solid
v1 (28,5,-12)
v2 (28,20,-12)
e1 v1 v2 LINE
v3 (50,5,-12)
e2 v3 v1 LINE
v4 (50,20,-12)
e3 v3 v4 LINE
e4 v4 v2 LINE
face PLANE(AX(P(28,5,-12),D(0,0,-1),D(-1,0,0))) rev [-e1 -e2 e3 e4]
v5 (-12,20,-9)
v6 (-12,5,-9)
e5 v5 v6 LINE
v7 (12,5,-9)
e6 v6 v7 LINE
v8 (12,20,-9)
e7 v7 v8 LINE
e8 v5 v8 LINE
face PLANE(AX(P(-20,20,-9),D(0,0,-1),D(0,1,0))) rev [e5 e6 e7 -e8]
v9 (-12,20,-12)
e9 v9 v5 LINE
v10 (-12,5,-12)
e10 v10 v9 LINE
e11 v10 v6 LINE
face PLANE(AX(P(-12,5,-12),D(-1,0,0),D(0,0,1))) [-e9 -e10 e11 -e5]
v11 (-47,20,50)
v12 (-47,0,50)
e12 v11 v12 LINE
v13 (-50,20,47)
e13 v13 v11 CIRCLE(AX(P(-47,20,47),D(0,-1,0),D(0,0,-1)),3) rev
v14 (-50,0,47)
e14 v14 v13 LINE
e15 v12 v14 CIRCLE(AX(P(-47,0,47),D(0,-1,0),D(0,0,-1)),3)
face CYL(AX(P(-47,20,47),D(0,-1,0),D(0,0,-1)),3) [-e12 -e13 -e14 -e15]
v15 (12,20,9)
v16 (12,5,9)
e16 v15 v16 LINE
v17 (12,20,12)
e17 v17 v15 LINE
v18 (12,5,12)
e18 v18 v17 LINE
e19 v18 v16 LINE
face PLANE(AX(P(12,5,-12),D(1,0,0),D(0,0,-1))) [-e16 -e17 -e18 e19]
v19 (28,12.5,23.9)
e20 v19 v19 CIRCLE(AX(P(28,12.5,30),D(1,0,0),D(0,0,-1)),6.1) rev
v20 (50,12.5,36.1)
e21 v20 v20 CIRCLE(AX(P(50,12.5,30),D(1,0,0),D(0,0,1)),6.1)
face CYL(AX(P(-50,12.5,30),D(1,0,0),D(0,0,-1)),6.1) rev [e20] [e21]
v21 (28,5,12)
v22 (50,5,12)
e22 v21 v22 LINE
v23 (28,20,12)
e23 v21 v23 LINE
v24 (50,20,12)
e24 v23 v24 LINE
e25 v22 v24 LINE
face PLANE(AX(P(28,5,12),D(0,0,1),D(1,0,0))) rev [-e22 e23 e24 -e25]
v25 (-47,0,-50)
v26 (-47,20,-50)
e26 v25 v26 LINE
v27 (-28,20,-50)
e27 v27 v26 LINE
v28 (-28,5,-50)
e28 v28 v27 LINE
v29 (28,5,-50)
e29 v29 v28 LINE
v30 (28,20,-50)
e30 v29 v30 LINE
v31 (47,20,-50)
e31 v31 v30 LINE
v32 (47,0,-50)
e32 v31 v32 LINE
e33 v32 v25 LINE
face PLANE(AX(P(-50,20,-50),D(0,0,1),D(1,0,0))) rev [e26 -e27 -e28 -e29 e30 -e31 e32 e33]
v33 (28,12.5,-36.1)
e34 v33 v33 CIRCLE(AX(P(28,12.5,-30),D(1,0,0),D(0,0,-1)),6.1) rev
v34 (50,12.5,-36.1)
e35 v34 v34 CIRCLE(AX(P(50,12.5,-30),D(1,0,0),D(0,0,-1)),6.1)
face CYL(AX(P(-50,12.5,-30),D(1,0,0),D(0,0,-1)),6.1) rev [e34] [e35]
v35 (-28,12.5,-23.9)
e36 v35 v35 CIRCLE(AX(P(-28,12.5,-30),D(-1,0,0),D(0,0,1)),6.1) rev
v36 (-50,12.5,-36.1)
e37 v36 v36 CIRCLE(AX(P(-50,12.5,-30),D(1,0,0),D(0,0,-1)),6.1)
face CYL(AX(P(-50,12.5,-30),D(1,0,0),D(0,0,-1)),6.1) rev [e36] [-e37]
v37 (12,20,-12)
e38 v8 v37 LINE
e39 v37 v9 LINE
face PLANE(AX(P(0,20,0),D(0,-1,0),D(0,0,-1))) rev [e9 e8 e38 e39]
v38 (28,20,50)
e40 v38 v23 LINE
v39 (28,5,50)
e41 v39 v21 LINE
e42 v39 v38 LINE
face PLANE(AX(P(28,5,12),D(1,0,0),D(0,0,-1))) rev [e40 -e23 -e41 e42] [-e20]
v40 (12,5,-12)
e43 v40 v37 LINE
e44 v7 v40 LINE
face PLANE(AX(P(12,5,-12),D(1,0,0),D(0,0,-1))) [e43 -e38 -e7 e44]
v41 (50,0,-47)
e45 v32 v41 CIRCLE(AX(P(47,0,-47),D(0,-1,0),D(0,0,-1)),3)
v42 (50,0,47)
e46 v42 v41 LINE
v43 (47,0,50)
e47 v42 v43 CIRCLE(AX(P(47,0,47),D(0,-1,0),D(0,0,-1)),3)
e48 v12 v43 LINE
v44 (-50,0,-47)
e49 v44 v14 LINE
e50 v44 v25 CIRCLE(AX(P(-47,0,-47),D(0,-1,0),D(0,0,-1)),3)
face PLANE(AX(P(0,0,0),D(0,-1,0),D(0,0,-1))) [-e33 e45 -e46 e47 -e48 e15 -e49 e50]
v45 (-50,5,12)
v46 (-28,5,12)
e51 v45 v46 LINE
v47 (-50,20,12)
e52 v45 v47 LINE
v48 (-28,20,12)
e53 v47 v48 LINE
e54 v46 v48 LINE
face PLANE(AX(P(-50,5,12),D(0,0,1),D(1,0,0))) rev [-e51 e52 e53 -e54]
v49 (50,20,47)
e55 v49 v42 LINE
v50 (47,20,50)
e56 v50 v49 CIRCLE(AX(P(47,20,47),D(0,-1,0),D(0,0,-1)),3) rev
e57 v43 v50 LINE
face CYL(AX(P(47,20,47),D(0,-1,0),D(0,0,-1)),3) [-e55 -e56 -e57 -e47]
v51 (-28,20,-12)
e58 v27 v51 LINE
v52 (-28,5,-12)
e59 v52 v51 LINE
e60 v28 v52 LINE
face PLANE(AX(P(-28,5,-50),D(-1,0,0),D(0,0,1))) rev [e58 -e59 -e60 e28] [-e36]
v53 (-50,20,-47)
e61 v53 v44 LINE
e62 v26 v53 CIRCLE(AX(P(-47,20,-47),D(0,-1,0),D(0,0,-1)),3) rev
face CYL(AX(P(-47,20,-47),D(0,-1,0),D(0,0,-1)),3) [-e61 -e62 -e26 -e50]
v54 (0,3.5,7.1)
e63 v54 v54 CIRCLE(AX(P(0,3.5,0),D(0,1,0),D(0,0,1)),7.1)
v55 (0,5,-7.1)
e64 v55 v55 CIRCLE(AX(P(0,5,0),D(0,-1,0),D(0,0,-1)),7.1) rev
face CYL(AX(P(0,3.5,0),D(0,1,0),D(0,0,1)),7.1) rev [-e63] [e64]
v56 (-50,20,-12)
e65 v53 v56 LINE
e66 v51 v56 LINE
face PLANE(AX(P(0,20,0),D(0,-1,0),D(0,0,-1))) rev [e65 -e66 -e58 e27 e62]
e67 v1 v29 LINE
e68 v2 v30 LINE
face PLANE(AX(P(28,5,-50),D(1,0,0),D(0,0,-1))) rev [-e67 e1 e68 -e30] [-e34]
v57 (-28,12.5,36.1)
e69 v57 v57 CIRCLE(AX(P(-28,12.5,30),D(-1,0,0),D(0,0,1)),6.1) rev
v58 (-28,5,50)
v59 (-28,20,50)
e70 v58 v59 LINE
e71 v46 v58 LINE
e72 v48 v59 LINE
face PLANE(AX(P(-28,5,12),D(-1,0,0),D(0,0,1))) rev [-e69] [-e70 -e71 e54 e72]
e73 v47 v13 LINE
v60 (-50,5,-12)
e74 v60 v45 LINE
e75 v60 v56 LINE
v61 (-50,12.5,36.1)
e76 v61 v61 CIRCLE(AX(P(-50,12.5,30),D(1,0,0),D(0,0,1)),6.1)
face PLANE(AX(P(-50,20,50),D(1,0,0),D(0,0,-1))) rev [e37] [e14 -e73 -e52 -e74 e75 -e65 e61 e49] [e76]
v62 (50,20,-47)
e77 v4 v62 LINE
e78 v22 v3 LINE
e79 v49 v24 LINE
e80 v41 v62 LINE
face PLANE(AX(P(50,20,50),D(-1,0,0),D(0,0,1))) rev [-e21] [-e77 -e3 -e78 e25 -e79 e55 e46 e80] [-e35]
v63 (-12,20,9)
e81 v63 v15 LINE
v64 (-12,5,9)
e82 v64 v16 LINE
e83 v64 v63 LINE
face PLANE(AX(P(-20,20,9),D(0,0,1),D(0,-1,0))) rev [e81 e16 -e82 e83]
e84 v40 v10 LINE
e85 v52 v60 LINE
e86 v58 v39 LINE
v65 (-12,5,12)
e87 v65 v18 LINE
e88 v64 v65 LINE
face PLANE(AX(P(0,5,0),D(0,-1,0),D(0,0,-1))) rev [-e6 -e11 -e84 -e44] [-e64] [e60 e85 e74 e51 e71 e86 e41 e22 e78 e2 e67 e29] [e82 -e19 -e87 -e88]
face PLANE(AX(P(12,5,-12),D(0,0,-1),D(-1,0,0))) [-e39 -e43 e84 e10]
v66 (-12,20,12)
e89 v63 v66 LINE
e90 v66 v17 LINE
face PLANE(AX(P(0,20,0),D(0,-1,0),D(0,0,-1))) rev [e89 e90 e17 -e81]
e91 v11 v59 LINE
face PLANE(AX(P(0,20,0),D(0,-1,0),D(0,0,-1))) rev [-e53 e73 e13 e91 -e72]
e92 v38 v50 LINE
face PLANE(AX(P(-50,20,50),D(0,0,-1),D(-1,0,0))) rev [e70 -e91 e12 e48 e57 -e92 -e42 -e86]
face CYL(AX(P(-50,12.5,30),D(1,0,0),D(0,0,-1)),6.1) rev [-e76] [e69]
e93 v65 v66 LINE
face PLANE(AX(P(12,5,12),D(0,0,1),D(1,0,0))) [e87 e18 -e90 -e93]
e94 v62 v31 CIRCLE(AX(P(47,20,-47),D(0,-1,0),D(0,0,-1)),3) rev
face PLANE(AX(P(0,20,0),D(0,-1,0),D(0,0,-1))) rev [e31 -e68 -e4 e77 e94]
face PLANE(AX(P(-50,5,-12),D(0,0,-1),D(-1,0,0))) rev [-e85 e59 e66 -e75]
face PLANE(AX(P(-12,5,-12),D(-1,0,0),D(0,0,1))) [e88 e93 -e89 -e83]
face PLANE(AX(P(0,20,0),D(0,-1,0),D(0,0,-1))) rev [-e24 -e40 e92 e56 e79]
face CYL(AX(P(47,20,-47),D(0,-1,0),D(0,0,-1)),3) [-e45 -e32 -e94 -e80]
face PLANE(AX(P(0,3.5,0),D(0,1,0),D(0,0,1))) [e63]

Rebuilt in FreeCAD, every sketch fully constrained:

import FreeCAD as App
import Part
import Sketcher
Q = App.Units.Quantity


def edges_at(feature, points):
    """Names of the edges that pass closest to the given points."""
    edges = feature.Shape.Edges
    near = lambda p: min(range(len(edges)), key=lambda i: edges[i].distToShape(Part.Vertex(*p))[0])
    return sorted({f"Edge{near(p) + 1}" for p in points})


def add_polygon(sketch, points):
    """Adds a closed chain of lines whose ends are joined by coincident constraints."""
    first, n = sketch.GeometryCount, len(points)
    for a, b in zip(points, points[1:] + points[:1]):
        sketch.addGeometry(Part.LineSegment(App.Vector(*a, 0), App.Vector(*b, 0)), False)
    for i in range(n):
        sketch.addConstraint(Sketcher.Constraint("Coincident", first + i, 2, first + (i + 1) % n, 1))

doc = App.newDocument("Part")
body = doc.addObject("PartDesign::Body", "Body")

sketch1 = body.newObject("Sketcher::SketchObject", "Sketch")
sketch1.AttachmentSupport = (doc.getObject("XZ_Plane"), [""])
sketch1.MapMode = "FlatFace"
add_polygon(sketch1, [(-50, -50), (-50, 50), (50, 50), (50, -50)])
sketch1.addConstraint(Sketcher.Constraint("Vertical", 0))
sketch1.addConstraint(Sketcher.Constraint("Horizontal", 1))
sketch1.addConstraint(Sketcher.Constraint("Vertical", 2))
sketch1.addConstraint(Sketcher.Constraint("Horizontal", 3))
sketch1.addConstraint(Sketcher.Constraint("Symmetric", 0, 2, 2, 2, -1, 1))
sketch1.addConstraint(Sketcher.Constraint("Equal", 3, 0))
sketch1.addConstraint(Sketcher.Constraint("DistanceX", 1, 1, 1, 2, Q("100 mm")))
pad1 = body.newObject("PartDesign::Pad", "Pad")
pad1.Profile = sketch1
pad1.Length = 20
pad1.Reversed = True

sketch2 = body.newObject("Sketcher::SketchObject", "Sketch001")
sketch2.AttachmentSupport = (doc.getObject("XZ_Plane"), [""])
sketch2.MapMode = "FlatFace"
sketch2.AttachmentOffset = App.Placement(App.Vector(0, 0, -20), App.Rotation())
sketch2.addGeometry(Part.Circle(App.Vector(0, 0, 0), App.Vector(0, 0, 1), 7), False)
sketch2.addConstraint(Sketcher.Constraint("Coincident", 0, 3, -1, 1))
sketch2.addConstraint(Sketcher.Constraint("Diameter", 0, Q("14.2 mm")))
pocket1 = body.newObject("PartDesign::Pocket", "Pocket")
pocket1.Profile = sketch2
pocket1.Length = 16.5
pocket1.Reversed = True

sketch3 = body.newObject("Sketcher::SketchObject", "Sketch002")
sketch3.AttachmentSupport = (doc.getObject("YZ_Plane"), [""])
sketch3.MapMode = "FlatFace"
sketch3.addGeometry(Part.Circle(App.Vector(12, -30, 0), App.Vector(0, 0, 1), 6), False)
sketch3.addGeometry(Part.Circle(App.Vector(12, 30, 0), App.Vector(0, 0, 1), 6), False)
sketch3.addConstraint(Sketcher.Constraint("Equal", 0, 1))
sketch3.addConstraint(Sketcher.Constraint("Symmetric", 0, 3, 1, 3, -1))
sketch3.addConstraint(Sketcher.Constraint("Diameter", 0, Q("12.2 mm")))
sketch3.addConstraint(Sketcher.Constraint("DistanceY", 0, 3, -1, 1, Q("30 mm")))
sketch3.addConstraint(Sketcher.Constraint("DistanceX", -1, 1, 0, 3, Q("12.5 mm")))
pocket2 = body.newObject("PartDesign::Pocket", "Pocket001")
pocket2.Profile = sketch3
pocket2.Type = "ThroughAll"
pocket2.Midplane = True
doc.recompute()

fillet = body.newObject("PartDesign::Fillet", "Fillet")
fillet.Base = (pocket2, edges_at(pocket2, [
    (50, 10, 50),
    (-50, 10, 50),
    (-50, 10, -50),
    (50, 10, -50),
]))
fillet.Radius = 3

sketch4 = body.newObject("Sketcher::SketchObject", "Sketch003")
sketch4.AttachmentSupport = (doc.getObject("XZ_Plane"), [""])
sketch4.MapMode = "FlatFace"
sketch4.AttachmentOffset = App.Placement(App.Vector(0, 0, -20), App.Rotation())
add_polygon(sketch4, [(-28, -12), (-50, -12), (-50, 12), (-28, 12), (-28, 50), (28, 50), (28, 12), (50, 12), (50, -12), (28, -12), (28, -50), (-28, -50)])
add_polygon(sketch4, [(-12, 12), (-12, -12), (12, -12), (12, 12)])
sketch4.addConstraint(Sketcher.Constraint("Horizontal", 0))
sketch4.addConstraint(Sketcher.Constraint("Vertical", 1))
sketch4.addConstraint(Sketcher.Constraint("Horizontal", 2))
sketch4.addConstraint(Sketcher.Constraint("Vertical", 3))
sketch4.addConstraint(Sketcher.Constraint("Horizontal", 4))
sketch4.addConstraint(Sketcher.Constraint("Vertical", 5))
sketch4.addConstraint(Sketcher.Constraint("Horizontal", 6))
sketch4.addConstraint(Sketcher.Constraint("Vertical", 7))
sketch4.addConstraint(Sketcher.Constraint("Horizontal", 8))
sketch4.addConstraint(Sketcher.Constraint("Vertical", 9))
sketch4.addConstraint(Sketcher.Constraint("Horizontal", 10))
sketch4.addConstraint(Sketcher.Constraint("Vertical", 11))
sketch4.addConstraint(Sketcher.Constraint("Vertical", 12))
sketch4.addConstraint(Sketcher.Constraint("Horizontal", 13))
sketch4.addConstraint(Sketcher.Constraint("Vertical", 14))
sketch4.addConstraint(Sketcher.Constraint("Horizontal", 15))
sketch4.addConstraint(Sketcher.Constraint("Symmetric", 0, 2, 6, 2, -1, 1))
sketch4.addConstraint(Sketcher.Constraint("Symmetric", 2, 2, 8, 2, -1, 1))
sketch4.addConstraint(Sketcher.Constraint("Symmetric", 4, 2, 10, 2, -1, 1))
sketch4.addConstraint(Sketcher.Constraint("Symmetric", 12, 2, 14, 2, -1, 1))
sketch4.addConstraint(Sketcher.Constraint("Symmetric", 2, 2, 5, 2, -2))
sketch4.addConstraint(Sketcher.Constraint("Horizontal", 11, 2, 12, 2))
sketch4.addConstraint(Sketcher.Constraint("Equal", 15, 1))
sketch4.addConstraint(Sketcher.Constraint("DistanceX", 0, 2, 0, 1, Q("22 mm")))
sketch4.addConstraint(Sketcher.Constraint("DistanceX", 4, 1, 4, 2, Q("56 mm")))
sketch4.addConstraint(Sketcher.Constraint("DistanceX", 13, 1, 13, 2, Q("24 mm")))
sketch4.addConstraint(Sketcher.Constraint("DistanceY", 3, 1, 3, 2, Q("38 mm")))
pocket3 = body.newObject("PartDesign::Pocket", "Pocket002")
pocket3.Profile = sketch4
pocket3.Length = 15
pocket3.Reversed = True

sketch5 = body.newObject("Sketcher::SketchObject", "Sketch004")
sketch5.AttachmentSupport = (doc.getObject("YZ_Plane"), [""])
sketch5.MapMode = "FlatFace"
sketch5.AttachmentOffset = App.Placement(App.Vector(0, 0, 12), App.Rotation())
add_polygon(sketch5, [(20, 9), (5, 9), (5, -9), (20, -9)])
sketch5.addConstraint(Sketcher.Constraint("Horizontal", 0))
sketch5.addConstraint(Sketcher.Constraint("Vertical", 1))
sketch5.addConstraint(Sketcher.Constraint("Horizontal", 2))
sketch5.addConstraint(Sketcher.Constraint("Vertical", 3))
sketch5.addConstraint(Sketcher.Constraint("DistanceX", 0, 2, 0, 1, Q("15 mm")))
sketch5.addConstraint(Sketcher.Constraint("DistanceY", 1, 2, 1, 1, Q("18 mm")))
sketch5.addConstraint(Sketcher.Constraint("DistanceX", -1, 1, 0, 2, Q("5 mm")))
sketch5.addConstraint(Sketcher.Constraint("DistanceY", -1, 1, 0, 2, Q("9 mm")))
pocket4 = body.newObject("PartDesign::Pocket", "Pocket003")
pocket4.Profile = sketch5
pocket4.Length = 32

doc.recompute()
